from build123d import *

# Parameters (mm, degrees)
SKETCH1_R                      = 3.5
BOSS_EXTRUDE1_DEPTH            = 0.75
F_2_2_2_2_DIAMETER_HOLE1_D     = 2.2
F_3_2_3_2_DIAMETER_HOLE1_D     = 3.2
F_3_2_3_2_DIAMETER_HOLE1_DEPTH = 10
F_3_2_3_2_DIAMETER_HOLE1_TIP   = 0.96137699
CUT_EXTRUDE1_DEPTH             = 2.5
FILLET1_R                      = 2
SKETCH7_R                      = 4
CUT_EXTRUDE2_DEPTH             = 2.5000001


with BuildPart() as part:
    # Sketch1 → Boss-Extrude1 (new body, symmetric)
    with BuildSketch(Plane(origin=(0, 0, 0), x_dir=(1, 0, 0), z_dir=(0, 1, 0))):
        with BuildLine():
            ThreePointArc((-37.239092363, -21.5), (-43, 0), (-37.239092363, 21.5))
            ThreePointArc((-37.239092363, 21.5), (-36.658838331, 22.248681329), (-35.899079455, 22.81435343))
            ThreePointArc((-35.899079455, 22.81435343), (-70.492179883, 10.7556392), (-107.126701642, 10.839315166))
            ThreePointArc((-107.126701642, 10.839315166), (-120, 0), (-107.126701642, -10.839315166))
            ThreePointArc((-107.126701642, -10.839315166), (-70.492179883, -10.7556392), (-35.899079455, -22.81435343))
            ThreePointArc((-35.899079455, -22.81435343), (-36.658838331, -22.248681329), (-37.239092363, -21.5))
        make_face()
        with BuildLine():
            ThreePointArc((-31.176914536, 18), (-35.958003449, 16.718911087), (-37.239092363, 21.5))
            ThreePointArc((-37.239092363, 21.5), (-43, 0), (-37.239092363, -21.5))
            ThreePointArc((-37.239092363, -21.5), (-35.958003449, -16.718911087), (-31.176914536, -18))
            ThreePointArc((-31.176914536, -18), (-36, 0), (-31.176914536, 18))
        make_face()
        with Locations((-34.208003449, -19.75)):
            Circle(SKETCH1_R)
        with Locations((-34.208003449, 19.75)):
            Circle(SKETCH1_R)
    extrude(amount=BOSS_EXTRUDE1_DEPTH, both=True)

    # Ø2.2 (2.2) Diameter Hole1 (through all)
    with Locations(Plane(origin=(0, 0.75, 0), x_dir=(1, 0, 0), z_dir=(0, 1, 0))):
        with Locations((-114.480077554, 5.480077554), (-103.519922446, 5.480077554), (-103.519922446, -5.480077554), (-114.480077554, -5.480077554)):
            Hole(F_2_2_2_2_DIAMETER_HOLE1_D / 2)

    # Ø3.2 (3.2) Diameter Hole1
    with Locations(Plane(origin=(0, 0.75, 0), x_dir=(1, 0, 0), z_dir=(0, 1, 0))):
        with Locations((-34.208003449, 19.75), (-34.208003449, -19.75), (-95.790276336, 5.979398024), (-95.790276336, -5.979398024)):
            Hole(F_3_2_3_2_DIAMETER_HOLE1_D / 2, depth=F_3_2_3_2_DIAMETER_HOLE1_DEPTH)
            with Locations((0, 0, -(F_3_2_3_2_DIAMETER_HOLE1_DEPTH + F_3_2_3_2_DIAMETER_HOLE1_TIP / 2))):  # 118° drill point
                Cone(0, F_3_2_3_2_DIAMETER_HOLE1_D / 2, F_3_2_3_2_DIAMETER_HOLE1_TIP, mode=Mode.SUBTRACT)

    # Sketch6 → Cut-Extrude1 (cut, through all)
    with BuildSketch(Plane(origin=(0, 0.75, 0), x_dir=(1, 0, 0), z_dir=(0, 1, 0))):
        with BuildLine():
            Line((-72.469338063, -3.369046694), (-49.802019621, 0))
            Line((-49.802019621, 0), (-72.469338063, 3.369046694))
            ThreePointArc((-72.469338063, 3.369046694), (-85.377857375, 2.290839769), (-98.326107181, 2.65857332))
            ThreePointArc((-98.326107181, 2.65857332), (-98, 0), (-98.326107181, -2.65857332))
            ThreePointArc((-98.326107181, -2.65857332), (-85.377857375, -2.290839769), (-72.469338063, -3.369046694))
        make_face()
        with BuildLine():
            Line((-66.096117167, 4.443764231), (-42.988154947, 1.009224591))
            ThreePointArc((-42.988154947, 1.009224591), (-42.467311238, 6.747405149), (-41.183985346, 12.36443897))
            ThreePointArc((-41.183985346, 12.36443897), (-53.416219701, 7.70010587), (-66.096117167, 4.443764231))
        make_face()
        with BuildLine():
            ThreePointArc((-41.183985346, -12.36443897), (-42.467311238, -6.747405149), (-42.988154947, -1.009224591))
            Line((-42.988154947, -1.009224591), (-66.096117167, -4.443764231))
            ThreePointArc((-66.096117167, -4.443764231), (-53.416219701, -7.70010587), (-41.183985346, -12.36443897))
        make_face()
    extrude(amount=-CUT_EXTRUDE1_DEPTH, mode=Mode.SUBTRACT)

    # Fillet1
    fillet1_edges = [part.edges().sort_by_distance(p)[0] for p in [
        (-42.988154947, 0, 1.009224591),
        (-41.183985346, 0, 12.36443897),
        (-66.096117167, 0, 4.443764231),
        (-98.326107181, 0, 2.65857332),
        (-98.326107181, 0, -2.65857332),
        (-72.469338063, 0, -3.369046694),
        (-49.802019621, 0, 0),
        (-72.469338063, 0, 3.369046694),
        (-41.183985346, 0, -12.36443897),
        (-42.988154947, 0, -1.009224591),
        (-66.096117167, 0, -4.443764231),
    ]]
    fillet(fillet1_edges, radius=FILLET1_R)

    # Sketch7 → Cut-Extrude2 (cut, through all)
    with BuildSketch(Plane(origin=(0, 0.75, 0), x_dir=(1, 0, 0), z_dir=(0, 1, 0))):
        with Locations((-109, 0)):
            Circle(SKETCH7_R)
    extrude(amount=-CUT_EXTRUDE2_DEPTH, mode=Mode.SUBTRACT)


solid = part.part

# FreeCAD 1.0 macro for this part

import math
import FreeCAD as App
import Part
import Sketcher
from FreeCAD import Vector


def edges_at(feature, points):
    """Names of the edges that pass closest to the given points."""
    edges = feature.Shape.Edges
    near = lambda p: min(range(len(edges)), key=lambda i: edges[i].distToShape(Part.Vertex(*p))[0])
    return sorted({f"Edge{near(p) + 1}" for p in points})

doc = App.newDocument("Part")
body = doc.addObject("PartDesign::Body", "Body")

# Sketch on XZ plane
sketch1 = body.newObject("Sketcher::SketchObject", "Sketch")
sketch1.AttachmentSupport = (doc.getObject("XZ_Plane"), [""])
sketch1.MapMode = "FlatFace"
sketch1.addGeometry([
    Part.ArcOfCircle(Part.Circle(Vector(-88.6, -118.2, 0), Vector(0, 0, 1), 109), math.radians(61), math.radians(100)),  # 0
    Part.ArcOfCircle(Part.Circle(Vector(-109, 0, 0), Vector(0, 0, 1), 11), math.radians(80), math.radians(280)),  # 1
    Part.ArcOfCircle(Part.Circle(Vector(-88.6, 118.2, 0), Vector(0, 0, 1), 109), math.radians(-100), math.radians(-61)),  # 2
    Part.ArcOfCircle(Part.Circle(Vector(-34.2, 19.8, 0), Vector(0, 0, 1), 3.5), math.radians(-30), math.radians(119)),  # 3
    Part.ArcOfCircle(Part.Circle(Vector(0, 0, 0), Vector(0, 0, 1), 36), math.radians(150), math.radians(210)),  # 4
    Part.ArcOfCircle(Part.Circle(Vector(-34.2, -19.8, 0), Vector(0, 0, 1), 3.5), math.radians(-119), math.radians(30)),  # 5
], False)
sketch1.addConstraint([
    Sketcher.Constraint("Tangent", 0, 2, 1, 2),
    Sketcher.Constraint("Tangent", 1, 1, 2, 1),
    Sketcher.Constraint("Tangent", 2, 2, 3, 2),
    Sketcher.Constraint("Tangent", 3, 1, 4, 1),
    Sketcher.Constraint("Tangent", 4, 2, 5, 2),
    Sketcher.Constraint("Tangent", 5, 1, 0, 1),
    Sketcher.Constraint("Coincident", 4, 3, -1, 1),
    Sketcher.Constraint("Equal", 0, 2),
    Sketcher.Constraint("Equal", 3, 5),
    Sketcher.Constraint("Symmetric", 0, 3, 2, 3, -1),
    Sketcher.Constraint("Radius", 0, 109.0),
    Sketcher.Constraint("Radius", 1, 11.0),
    Sketcher.Constraint("Radius", 4, 36.0),
    Sketcher.Constraint("Radius", 3, 3.5),
    Sketcher.Constraint("DistanceX", 1, 3, -1, 1, 109.0),
    Sketcher.Constraint("DistanceY", -1, 1, 3, 1, 18.0),
])
pad1 = body.newObject("PartDesign::Pad", "Pad")
pad1.Profile = sketch1
pad1.Length = 1.5
pad1.Midplane = True

# Sketch on XZ plane
sketch2 = body.newObject("Sketcher::SketchObject", "Sketch001")
sketch2.AttachmentSupport = (doc.getObject("XZ_Plane"), [""])
sketch2.MapMode = "FlatFace"
sketch2.AttachmentOffset = App.Placement(Vector(0, 0, -0.75), App.Rotation())
sketch2.addGeometry([
    Part.Circle(Vector(-114.5, -5.5, 0), Vector(0, 0, 1), 1.1),
    Part.Circle(Vector(-103.5, -5.5, 0), Vector(0, 0, 1), 1.1),
    Part.Circle(Vector(-103.5, 5.5, 0), Vector(0, 0, 1), 1.1),
    Part.Circle(Vector(-114.5, 5.5, 0), Vector(0, 0, 1), 1.1),
], False)
sketch2.addConstraint([
    Sketcher.Constraint("Equal", 0, 1),
    Sketcher.Constraint("Equal", 1, 2),
    Sketcher.Constraint("Equal", 2, 3),
    Sketcher.Constraint("Symmetric", 1, 3, 2, 3, -1),
    Sketcher.Constraint("Symmetric", 0, 3, 3, 3, -1),
    Sketcher.Constraint("Horizontal", 0, 3, 1, 3),
    Sketcher.Constraint("Diameter", 0, 2.2),
    Sketcher.Constraint("DistanceX", 0, 3, -1, 1, 114.480078),
    Sketcher.Constraint("DistanceY", 0, 3, -1, 1, 5.480078),
    Sketcher.Constraint("DistanceX", 1, 3, -1, 1, 103.519922),
])
doc.recompute()
hole = body.newObject("PartDesign::Hole", "Hole")
hole.Profile = sketch2
hole.ThreadType = "None"
hole.Diameter = 2.2
hole.DepthType = "ThroughAll"
hole.Reversed = True

# Sketch on XZ plane
sketch3 = body.newObject("Sketcher::SketchObject", "Sketch002")
sketch3.AttachmentSupport = (doc.getObject("XZ_Plane"), [""])
sketch3.MapMode = "FlatFace"
sketch3.AttachmentOffset = App.Placement(Vector(0, 0, -0.75), App.Rotation())
sketch3.addGeometry([
    Part.Circle(Vector(-34.2, -19.8, 0), Vector(0, 0, 1), 1.6),
    Part.Circle(Vector(-34.2, 19.8, 0), Vector(0, 0, 1), 1.6),
    Part.Circle(Vector(-95.8, -6, 0), Vector(0, 0, 1), 1.6),
    Part.Circle(Vector(-95.8, 6, 0), Vector(0, 0, 1), 1.6),
], False)
sketch3.addConstraint([
    Sketcher.Constraint("Equal", 0, 1),
    Sketcher.Constraint("Equal", 1, 2),
    Sketcher.Constraint("Equal", 2, 3),
    Sketcher.Constraint("Symmetric", 0, 3, 1, 3, -1),
    Sketcher.Constraint("Symmetric", 2, 3, 3, 3, -1),
    Sketcher.Constraint("Diameter", 0, 3.2),
    Sketcher.Constraint("DistanceY", 0, 3, 1, 3, 39.5),
    Sketcher.Constraint("DistanceY", 2, 3, -1, 1, 5.979398),
    Sketcher.Constraint("DistanceX", 0, 3, -1, 1, 34.208003),
    Sketcher.Constraint("DistanceX", 2, 3, -1, 1, 95.790276),
])
doc.recompute()
hole2 = body.newObject("PartDesign::Hole", "Hole001")
hole2.Profile = sketch3
hole2.ThreadType = "None"
hole2.Diameter = 3.2
hole2.DepthType = "Dimension"
hole2.Depth = 10
hole2.DrillPoint = "Angled"
hole2.DrillPointAngle = 118
hole2.Reversed = True

# Sketch on XZ plane
sketch4 = body.newObject("Sketcher::SketchObject", "Sketch003")
sketch4.AttachmentSupport = (doc.getObject("XZ_Plane"), [""])
sketch4.MapMode = "FlatFace"
sketch4.AttachmentOffset = App.Placement(Vector(0, 0, -0.75), App.Rotation())
sketch4.addGeometry([
    Part.LineSegment(Vector(-72, 3, 0), Vector(-50, 0, 0)),  # 0
    Part.LineSegment(Vector(-50, 0, 0), Vector(-72, -3, 0)),  # 1
    Part.ArcOfCircle(Part.Circle(Vector(-89, -118, 0), Vector(0, 0, 1), 116), math.radians(82.02), math.radians(94.83)),  # 2
    Part.ArcOfCircle(Part.Circle(Vector(-109, 0, 0), Vector(0, 0, 1), 11), math.radians(-14), math.radians(14)),  # 3
    Part.ArcOfCircle(Part.Circle(Vector(-89, 118, 0), Vector(0, 0, 1), 116), math.radians(-94.83), math.radians(-82.02)),  # 4
    Part.LineSegment(Vector(-66, -4, 0), Vector(-43, -1, 0)),  # 5
    Part.ArcOfCircle(Part.Circle(Vector(0, 0, 0), Vector(0, 0, 1), 43), math.radians(-178.66), math.radians(-163.29)),  # 6
    Part.ArcOfCircle(Part.Circle(Vector(-89, -118, 0), Vector(0, 0, 1), 116), math.radians(65.89), math.radians(78.83)),  # 7
    Part.ArcOfCircle(Part.Circle(Vector(0, 0, 0), Vector(0, 0, 1), 43), math.radians(163.29), math.radians(178.66)),  # 8
    Part.LineSegment(Vector(-43, 1, 0), Vector(-66, 4, 0)),  # 9
    Part.ArcOfCircle(Part.Circle(Vector(-89, 118, 0), Vector(0, 0, 1), 116), math.radians(-78.83), math.radians(-65.89)),  # 10
], False)
sketch4.addConstraint([
    Sketcher.Constraint("Coincident", 0, 2, 1, 1),
    Sketcher.Constraint("Coincident", 1, 2, 2, 1),
    Sketcher.Constraint("Coincident", 2, 2, 3, 1),
    Sketcher.Constraint("Coincident", 3, 2, 4, 1),
    Sketcher.Constraint("Coincident", 4, 2, 0, 1),
    Sketcher.Constraint("Coincident", 5, 2, 6, 1),
    Sketcher.Constraint("Coincident", 6, 2, 7, 1),
    Sketcher.Constraint("Coincident", 7, 2, 5, 1),
    Sketcher.Constraint("Coincident", 8, 2, 9, 1),
    Sketcher.Constraint("Coincident", 9, 2, 10, 1),
    Sketcher.Constraint("Coincident", 10, 2, 8, 1),
    Sketcher.Constraint("Coincident", 6, 3, -1, 1),
    Sketcher.Constraint("Coincident", 8, 3, -1, 1),
    Sketcher.Constraint("Coincident", 7, 3, 2, 3),
    Sketcher.Constraint("Coincident", 10, 3, 4, 3),
    Sketcher.Constraint("Equal", 2, 4),
    Sketcher.Constraint("Equal", 4, 7),
    Sketcher.Constraint("Equal", 6, 8),
    Sketcher.Constraint("Equal", 7, 10),
    Sketcher.Constraint("Symmetric", 2, 3, 4, 3, -1),
    Sketcher.Constraint("PointOnObject", 3, 3, -1),
    Sketcher.Constraint("PointOnObject", 0, 2, -1),
    Sketcher.Constraint("Parallel", 1, 5),
    Sketcher.Constraint("Parallel", 0, 9),
    Sketcher.Constraint("Vertical", 1, 2, 4, 2),
    Sketcher.Constraint("Vertical", 5, 2, 8, 2),
    Sketcher.Constraint("Radius", 2, 116.0),
    Sketcher.Constraint("Radius", 3, 11.0),
    Sketcher.Constraint("Radius", 6, 43.0),
    Sketcher.Constraint("DistanceX", 3, 3, -1, 1, 109.0),
    Sketcher.Constraint("DistanceX", 2, 3, 0, 2, 38.761998),
    Sketcher.Constraint("Distance", 0, 22.916322),
    Sketcher.Constraint("DistanceX", 0, 2, -1, 1, 49.80202),
    Sketcher.Constraint("DistanceX", 1, 2, -1, 1, 72.469338),
    Sketcher.Constraint("DistanceY", 5, 2, 4, 2, 4.378271),
])
pocket1 = body.newObject("PartDesign::Pocket", "Pocket")
pocket1.Profile = sketch4
pocket1.Type = "ThroughAll"
pocket1.Reversed = True
doc.recompute()

fillet = body.newObject("PartDesign::Fillet", "Fillet")
fillet.Base = (pocket1, edges_at(pocket1, [
    (-42.988, 0, 1.009),
    (-41.184, 0, 12.364),
    (-66.096, 0, 4.444),
    (-98.326, 0, 2.659),
    (-98.326, 0, -2.659),
    (-72.469, 0, -3.369),
    (-49.802, 0, 0),
    (-72.469, 0, 3.369),
    (-41.184, 0, -12.364),
    (-42.988, 0, -1.009),
    (-66.096, 0, -4.444),
]))
fillet.Radius = 2

# Sketch on XZ plane
sketch5 = body.newObject("Sketcher::SketchObject", "Sketch004")
sketch5.AttachmentSupport = (doc.getObject("XZ_Plane"), [""])
sketch5.MapMode = "FlatFace"
sketch5.AttachmentOffset = App.Placement(Vector(0, 0, -0.75), App.Rotation())
sketch5.addGeometry(Part.Circle(Vector(-109, 0, 0), Vector(0, 0, 1), 4), False)
sketch5.addConstraint([
    Sketcher.Constraint("PointOnObject", 0, 3, -1),
    Sketcher.Constraint("Diameter", 0, 8.0),
    Sketcher.Constraint("DistanceX", 0, 3, -1, 1, 109.0),
])
pocket2 = body.newObject("PartDesign::Pocket", "Pocket001")
pocket2.Profile = sketch5
pocket2.Type = "ThroughAll"
pocket2.Reversed = True

doc.recompute()
